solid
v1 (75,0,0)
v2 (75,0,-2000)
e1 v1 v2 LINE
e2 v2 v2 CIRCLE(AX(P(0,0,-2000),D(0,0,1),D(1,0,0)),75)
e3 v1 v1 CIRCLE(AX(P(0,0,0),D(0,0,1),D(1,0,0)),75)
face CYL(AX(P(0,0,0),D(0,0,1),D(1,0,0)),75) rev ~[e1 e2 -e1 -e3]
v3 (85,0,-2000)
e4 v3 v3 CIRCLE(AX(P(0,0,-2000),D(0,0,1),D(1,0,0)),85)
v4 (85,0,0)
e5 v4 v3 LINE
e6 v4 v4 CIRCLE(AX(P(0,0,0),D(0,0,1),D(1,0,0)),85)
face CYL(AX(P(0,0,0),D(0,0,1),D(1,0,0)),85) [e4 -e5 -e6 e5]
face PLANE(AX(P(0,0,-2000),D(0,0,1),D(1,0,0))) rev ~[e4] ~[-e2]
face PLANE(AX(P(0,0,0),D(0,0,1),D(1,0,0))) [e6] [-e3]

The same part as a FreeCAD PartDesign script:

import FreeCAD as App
import Part
import Sketcher

V = App.Vector
Q = App.Units.Quantity

doc = App.newDocument("Part")
body = doc.addObject("PartDesign::Body", "Body")

# Sketch on XY plane
sketch1 = doc.addObject("Sketcher::SketchObject", "Sketch")
body.addObject(sketch1)
sketch1.AttachmentSupport = (doc.XY_Plane, [""])
sketch1.MapMode = "FlatFace"
sketch1.addGeometry(Part.Circle(V(0, 0, 0), V(0, 0, 1), 85), False)
sketch1.addGeometry(Part.Circle(V(0, 0, 0), V(0, 0, 1), 75), False)
sketch1.addConstraint(Sketcher.Constraint("Coincident", 0, 3, -1, 1))
sketch1.addConstraint(Sketcher.Constraint("Coincident", 1, 3, -1, 1))
sketch1.addConstraint(Sketcher.Constraint("Diameter", 0, Q("170 mm")))
sketch1.addConstraint(Sketcher.Constraint("Diameter", 1, Q("150 mm")))
pad1 = doc.addObject("PartDesign::Pad", "Pad")
body.addObject(pad1)
pad1.Profile = sketch1
pad1.Length = 2000
pad1.Reversed = True

doc.recompute()
